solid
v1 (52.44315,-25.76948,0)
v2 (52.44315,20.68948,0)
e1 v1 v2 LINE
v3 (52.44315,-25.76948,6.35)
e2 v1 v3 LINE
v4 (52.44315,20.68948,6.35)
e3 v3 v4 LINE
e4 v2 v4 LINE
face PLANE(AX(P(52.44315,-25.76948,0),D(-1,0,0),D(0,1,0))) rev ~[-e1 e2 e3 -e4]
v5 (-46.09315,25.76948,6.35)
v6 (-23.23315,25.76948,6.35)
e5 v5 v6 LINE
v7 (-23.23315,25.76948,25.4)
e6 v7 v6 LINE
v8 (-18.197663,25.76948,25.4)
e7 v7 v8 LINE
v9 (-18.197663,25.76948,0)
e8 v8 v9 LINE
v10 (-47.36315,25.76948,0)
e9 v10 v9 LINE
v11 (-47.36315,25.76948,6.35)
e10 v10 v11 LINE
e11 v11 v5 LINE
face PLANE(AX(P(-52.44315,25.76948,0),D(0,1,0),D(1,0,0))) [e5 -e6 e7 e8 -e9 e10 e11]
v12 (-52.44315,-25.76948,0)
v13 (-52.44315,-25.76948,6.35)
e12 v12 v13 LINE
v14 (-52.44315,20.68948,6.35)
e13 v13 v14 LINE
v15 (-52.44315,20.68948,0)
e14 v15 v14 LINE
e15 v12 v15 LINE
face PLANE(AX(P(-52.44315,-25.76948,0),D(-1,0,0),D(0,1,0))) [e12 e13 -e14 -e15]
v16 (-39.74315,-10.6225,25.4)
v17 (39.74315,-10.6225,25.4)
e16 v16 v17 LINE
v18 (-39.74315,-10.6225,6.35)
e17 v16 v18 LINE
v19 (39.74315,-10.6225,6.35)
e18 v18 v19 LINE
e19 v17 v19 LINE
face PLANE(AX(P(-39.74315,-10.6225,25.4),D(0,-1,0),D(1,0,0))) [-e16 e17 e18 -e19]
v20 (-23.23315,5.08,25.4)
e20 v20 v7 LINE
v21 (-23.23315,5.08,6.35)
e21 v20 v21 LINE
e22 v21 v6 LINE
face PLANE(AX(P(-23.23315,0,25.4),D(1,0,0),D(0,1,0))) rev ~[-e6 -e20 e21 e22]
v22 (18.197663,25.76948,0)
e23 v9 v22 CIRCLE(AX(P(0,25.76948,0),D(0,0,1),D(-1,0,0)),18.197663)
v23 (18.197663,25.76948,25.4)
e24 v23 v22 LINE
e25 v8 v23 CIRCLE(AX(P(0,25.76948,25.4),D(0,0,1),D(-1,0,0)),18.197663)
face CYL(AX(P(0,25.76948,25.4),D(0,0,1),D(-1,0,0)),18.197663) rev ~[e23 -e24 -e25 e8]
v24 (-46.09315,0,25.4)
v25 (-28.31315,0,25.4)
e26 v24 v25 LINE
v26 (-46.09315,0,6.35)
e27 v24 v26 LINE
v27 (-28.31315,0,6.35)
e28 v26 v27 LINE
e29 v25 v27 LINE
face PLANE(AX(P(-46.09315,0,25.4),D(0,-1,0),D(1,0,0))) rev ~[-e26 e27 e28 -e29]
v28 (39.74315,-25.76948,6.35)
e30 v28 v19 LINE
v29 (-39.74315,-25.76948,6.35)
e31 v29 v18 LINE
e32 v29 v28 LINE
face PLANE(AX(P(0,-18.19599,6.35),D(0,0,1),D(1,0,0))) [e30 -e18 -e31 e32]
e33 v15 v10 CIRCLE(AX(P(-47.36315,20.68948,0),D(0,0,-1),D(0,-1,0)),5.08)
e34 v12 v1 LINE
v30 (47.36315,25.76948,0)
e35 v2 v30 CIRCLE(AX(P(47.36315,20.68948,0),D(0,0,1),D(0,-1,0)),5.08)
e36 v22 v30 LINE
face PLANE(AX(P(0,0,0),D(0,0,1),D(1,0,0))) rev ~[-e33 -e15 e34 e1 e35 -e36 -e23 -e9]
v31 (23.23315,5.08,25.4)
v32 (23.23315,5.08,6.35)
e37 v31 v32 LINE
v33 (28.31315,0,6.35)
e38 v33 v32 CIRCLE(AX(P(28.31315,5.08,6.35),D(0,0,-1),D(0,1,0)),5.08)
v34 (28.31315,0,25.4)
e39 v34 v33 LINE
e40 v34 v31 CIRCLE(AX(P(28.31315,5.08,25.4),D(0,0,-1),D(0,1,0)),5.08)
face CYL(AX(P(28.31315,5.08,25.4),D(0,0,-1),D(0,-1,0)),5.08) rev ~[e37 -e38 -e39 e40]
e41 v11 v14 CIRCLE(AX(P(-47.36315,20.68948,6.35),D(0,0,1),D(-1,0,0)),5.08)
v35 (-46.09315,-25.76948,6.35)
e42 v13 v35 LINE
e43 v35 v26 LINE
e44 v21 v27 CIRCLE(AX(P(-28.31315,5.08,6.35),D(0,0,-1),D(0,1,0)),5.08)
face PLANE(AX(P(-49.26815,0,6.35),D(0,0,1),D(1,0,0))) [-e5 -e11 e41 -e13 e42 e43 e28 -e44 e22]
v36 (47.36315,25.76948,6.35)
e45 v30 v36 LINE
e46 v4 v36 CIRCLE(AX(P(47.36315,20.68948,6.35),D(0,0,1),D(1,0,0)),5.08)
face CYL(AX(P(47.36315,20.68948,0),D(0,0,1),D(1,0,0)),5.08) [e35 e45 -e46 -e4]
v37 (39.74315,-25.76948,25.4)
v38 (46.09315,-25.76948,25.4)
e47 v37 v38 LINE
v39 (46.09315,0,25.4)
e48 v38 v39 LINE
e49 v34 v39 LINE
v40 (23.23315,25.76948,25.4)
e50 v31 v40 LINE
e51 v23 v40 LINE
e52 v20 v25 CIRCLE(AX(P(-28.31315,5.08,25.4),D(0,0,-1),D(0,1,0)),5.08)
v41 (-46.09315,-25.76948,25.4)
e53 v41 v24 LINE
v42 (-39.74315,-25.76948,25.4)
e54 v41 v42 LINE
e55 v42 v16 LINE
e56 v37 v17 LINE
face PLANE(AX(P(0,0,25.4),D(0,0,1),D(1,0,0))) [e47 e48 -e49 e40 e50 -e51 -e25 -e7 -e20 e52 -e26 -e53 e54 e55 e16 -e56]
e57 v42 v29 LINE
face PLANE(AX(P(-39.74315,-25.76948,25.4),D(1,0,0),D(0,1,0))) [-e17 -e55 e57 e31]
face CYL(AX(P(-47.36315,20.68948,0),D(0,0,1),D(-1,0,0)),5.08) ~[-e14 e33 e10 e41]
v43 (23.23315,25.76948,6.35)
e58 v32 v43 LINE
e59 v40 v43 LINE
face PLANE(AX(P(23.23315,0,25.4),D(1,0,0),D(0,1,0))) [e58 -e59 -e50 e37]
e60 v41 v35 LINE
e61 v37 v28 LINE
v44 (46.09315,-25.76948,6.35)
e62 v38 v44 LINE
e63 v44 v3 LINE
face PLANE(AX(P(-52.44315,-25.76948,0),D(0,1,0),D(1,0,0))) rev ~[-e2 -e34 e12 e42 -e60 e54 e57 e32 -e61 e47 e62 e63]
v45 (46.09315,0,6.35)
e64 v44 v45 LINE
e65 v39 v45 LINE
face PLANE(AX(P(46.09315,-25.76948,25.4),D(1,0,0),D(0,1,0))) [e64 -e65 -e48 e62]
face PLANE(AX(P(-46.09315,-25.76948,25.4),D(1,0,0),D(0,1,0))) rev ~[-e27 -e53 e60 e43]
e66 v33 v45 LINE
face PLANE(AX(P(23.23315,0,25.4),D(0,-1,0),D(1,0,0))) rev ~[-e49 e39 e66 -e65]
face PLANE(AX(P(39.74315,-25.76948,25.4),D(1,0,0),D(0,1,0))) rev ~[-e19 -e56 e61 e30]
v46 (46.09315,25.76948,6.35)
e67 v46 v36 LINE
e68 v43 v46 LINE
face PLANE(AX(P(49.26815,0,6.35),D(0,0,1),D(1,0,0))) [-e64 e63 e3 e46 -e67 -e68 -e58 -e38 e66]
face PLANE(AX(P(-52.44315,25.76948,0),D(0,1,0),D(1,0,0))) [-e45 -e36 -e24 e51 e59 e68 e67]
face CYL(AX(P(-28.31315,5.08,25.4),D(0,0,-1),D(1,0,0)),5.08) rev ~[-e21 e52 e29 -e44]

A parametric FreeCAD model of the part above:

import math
import FreeCAD as App
import Part
import Sketcher

V = App.Vector
Q = App.Units.Quantity


def edges_at(feature, points):
    """Names of the edges that pass closest to the given points."""
    edges = feature.Shape.Edges
    near = lambda p: min(range(len(edges)), key=lambda i: edges[i].distToShape(Part.Vertex(*p))[0])
    return sorted({f"Edge{near(p) + 1}" for p in points})

doc = App.newDocument("Part")
body = doc.addObject("PartDesign::Body", "Body")

sketch1 = doc.addObject("Sketcher::SketchObject", "Sketch")
body.addObject(sketch1)
sketch1.AttachmentSupport = (doc.XY_Plane, [""])
sketch1.MapMode = "FlatFace"
sketch1.addGeometry([
    Part.LineSegment(V(-52.44315, 25.76948, 0), V(-52.44315, -25.76948, 0)),
    Part.LineSegment(V(-52.44315, -25.76948, 0), V(52.44315, -25.76948, 0)),
    Part.LineSegment(V(52.44315, -25.76948, 0), V(52.44315, 25.76948, 0)),
    Part.LineSegment(V(52.44315, 25.76948, 0), V(-52.44315, 25.76948, 0)),
], False)
sketch1.addConstraint([
    Sketcher.Constraint("Coincident", 0, 2, 1, 1),
    Sketcher.Constraint("Coincident", 1, 2, 2, 1),
    Sketcher.Constraint("Coincident", 2, 2, 3, 1),
    Sketcher.Constraint("Coincident", 3, 2, 0, 1),
    Sketcher.Constraint("Vertical", 0),
    Sketcher.Constraint("Horizontal", 1),
    Sketcher.Constraint("Vertical", 2),
    Sketcher.Constraint("Horizontal", 3),
    Sketcher.Constraint("Symmetric", 0, 2, 2, 2, -1, 1),
    Sketcher.Constraint("DistanceX", 1, 1, 1, 2, 104.886301),
    Sketcher.Constraint("DistanceY", 0, 2, 0, 1, 51.538959),
])
pad1 = doc.addObject("PartDesign::Pad", "Pad")
body.addObject(pad1)
pad1.Profile = sketch1
pad1.Length = Q("1 in")
doc.recompute()

fillet = doc.addObject("PartDesign::Fillet", "Fillet")
body.addObject(fillet)
fillet.Base = (pad1, edges_at(pad1, [(-52.443, 25.769, 12.7), (52.443, 25.769, 12.7)]))
fillet.Radius = Q("0.2 in")

sketch2 = doc.addObject("Sketcher::SketchObject", "Sketch001")
body.addObject(sketch2)
sketch2.AttachmentSupport = (doc.XY_Plane, [""])
sketch2.MapMode = "FlatFace"
sketch2.AttachmentOffset = App.Placement(V(0, 0, 1 * 25.4), App.Rotation())
sketch2.addGeometry([
    Part.LineSegment(V(-39.74315, -10.6225, 0), V(-39.74315, -25.76948, 0)),
    Part.LineSegment(V(-39.74315, -25.76948, 0), V(39.74315, -25.76948, 0)),
    Part.LineSegment(V(39.74315, -25.76948, 0), V(39.74315, -10.6225, 0)),
    Part.LineSegment(V(39.74315, -10.6225, 0), V(-39.74315, -10.6225, 0)),
], False)
sketch2.addConstraint([
    Sketcher.Constraint("Coincident", 0, 2, 1, 1),
    Sketcher.Constraint("Coincident", 1, 2, 2, 1),
    Sketcher.Constraint("Coincident", 2, 2, 3, 1),
    Sketcher.Constraint("Coincident", 3, 2, 0, 1),
    Sketcher.Constraint("Vertical", 0),
    Sketcher.Constraint("Horizontal", 1),
    Sketcher.Constraint("Vertical", 2),
    Sketcher.Constraint("Horizontal", 3),
    Sketcher.Constraint("DistanceX", 1, 1, 1, 2, 79.486301),
    Sketcher.Constraint("DistanceY", 0, 2, 0, 1, 15.146979),
    Sketcher.Constraint("DistanceY", 2, 2, -1, 1, 10.6225),
    Sketcher.Constraint("DistanceX", 0, 2, -1, 1, 39.74315),
])
pocket1 = doc.addObject("PartDesign::Pocket", "Pocket")
body.addObject(pocket1)
pocket1.Profile = sketch2
pocket1.Length = Q("0.75 in")

sketch3 = doc.addObject("Sketcher::SketchObject", "Sketch002")
body.addObject(sketch3)
sketch3.AttachmentSupport = (doc.XY_Plane, [""])
sketch3.MapMode = "FlatFace"
sketch3.AttachmentOffset = App.Placement(V(0, 0, 1 * 25.4), App.Rotation())
sketch3.addGeometry([
    Part.ArcOfCircle(Part.Circle(V(0, 25.76948, 0), V(0, 0, 1), 18.197663), math.radians(180), math.radians(360)),
    Part.LineSegment(V(18.197663, 25.76948, 0), V(-18.197663, 25.76948, 0)),
], False)
sketch3.addConstraint([
    Sketcher.Constraint("Coincident", 0, 1, 1, 2),
    Sketcher.Constraint("Coincident", 1, 1, 0, 2),
    Sketcher.Constraint("Horizontal", 1),
    Sketcher.Constraint("PointOnObject", 0, 3, -2),
    Sketcher.Constraint("Radius", 0, 18.197663),
    Sketcher.Constraint("DistanceY", -1, 1, 0, 3, 25.76948),
    Sketcher.Constraint("DistanceY", -1, 1, 0, 1, 25.76948),
])
pocket2 = doc.addObject("PartDesign::Pocket", "Pocket001")
body.addObject(pocket2)
pocket2.Profile = sketch3
pocket2.Length = Q("1 in")

sketch4 = doc.addObject("Sketcher::SketchObject", "Sketch003")
body.addObject(sketch4)
sketch4.AttachmentSupport = (doc.XY_Plane, [""])
sketch4.MapMode = "FlatFace"
sketch4.AttachmentOffset = App.Placement(V(0, 0, 1 * 25.4), App.Rotation())
sketch4.addGeometry([
    Part.LineSegment(V(-52.44315, 25.76948, 0), V(-52.44315, -25.76948, 0)),
    Part.LineSegment(V(-52.44315, -25.76948, 0), V(-46.09315, -25.76948, 0)),
    Part.LineSegment(V(-46.09315, -25.76948, 0), V(-46.09315, 25.76948, 0)),
    Part.LineSegment(V(-46.09315, 25.76948, 0), V(-52.44315, 25.76948, 0)),
    Part.LineSegment(V(46.09315, 25.76948, 0), V(46.09315, -25.76948, 0)),
    Part.LineSegment(V(46.09315, -25.76948, 0), V(52.44315, -25.76948, 0)),
    Part.LineSegment(V(52.44315, -25.76948, 0), V(52.44315, 25.76948, 0)),
    Part.LineSegment(V(52.44315, 25.76948, 0), V(46.09315, 25.76948, 0)),
], False)
sketch4.addConstraint([
    Sketcher.Constraint("Coincident", 0, 2, 1, 1),
    Sketcher.Constraint("Coincident", 1, 2, 2, 1),
    Sketcher.Constraint("Coincident", 2, 2, 3, 1),
    Sketcher.Constraint("Coincident", 3, 2, 0, 1),
    Sketcher.Constraint("Coincident", 4, 2, 5, 1),
    Sketcher.Constraint("Coincident", 5, 2, 6, 1),
    Sketcher.Constraint("Coincident", 6, 2, 7, 1),
    Sketcher.Constraint("Coincident", 7, 2, 4, 1),
    Sketcher.Constraint("Vertical", 0),
    Sketcher.Constraint("Horizontal", 1),
    Sketcher.Constraint("Vertical", 2),
    Sketcher.Constraint("Horizontal", 3),
    Sketcher.Constraint("Vertical", 4),
    Sketcher.Constraint("Horizontal", 5),
    Sketcher.Constraint("Vertical", 6),
    Sketcher.Constraint("Horizontal", 7),
    Sketcher.Constraint("Symmetric", 2, 2, 4, 2, -1, 1),
    Sketcher.Constraint("Symmetric", 0, 2, 6, 2, -1, 1),
    Sketcher.Constraint("Horizontal", 1, 2, 4, 2),
    Sketcher.Constraint("DistanceX", 1, 1, 1, 2, Q("0.25 in")),
    Sketcher.Constraint("DistanceY", 0, 2, 0, 1, 51.538959),
    Sketcher.Constraint("DistanceX", 1, 2, 4, 2, 92.186301),
])
pocket3 = doc.addObject("PartDesign::Pocket", "Pocket002")
body.addObject(pocket3)
pocket3.Profile = sketch4
pocket3.Length = Q("0.75 in")

sketch5 = doc.addObject("Sketcher::SketchObject", "Sketch004")
body.addObject(sketch5)
sketch5.AttachmentSupport = (doc.XY_Plane, [""])
sketch5.MapMode = "FlatFace"
sketch5.AttachmentOffset = App.Placement(V(0, 0, 1 * 25.4), App.Rotation())
sketch5.addGeometry([
    Part.LineSegment(V(-46.09315, 25.76948, 0), V(-46.09315, 0, 0)),
    Part.LineSegment(V(-46.09315, 0, 0), V(-23.23315, 0, 0)),
    Part.LineSegment(V(-23.23315, 0, 0), V(-23.23315, 25.76948, 0)),
    Part.LineSegment(V(-23.23315, 25.76948, 0), V(-46.09315, 25.76948, 0)),
    Part.LineSegment(V(23.23315, 25.76948, 0), V(23.23315, 0, 0)),
    Part.LineSegment(V(23.23315, 0, 0), V(46.09315, 0, 0)),
    Part.LineSegment(V(46.09315, 0, 0), V(46.09315, 25.76948, 0)),
    Part.LineSegment(V(46.09315, 25.76948, 0), V(23.23315, 25.76948, 0)),
], False)
sketch5.addConstraint([
    Sketcher.Constraint("Coincident", 0, 2, 1, 1),
    Sketcher.Constraint("Coincident", 1, 2, 2, 1),
    Sketcher.Constraint("Coincident", 2, 2, 3, 1),
    Sketcher.Constraint("Coincident", 3, 2, 0, 1),
    Sketcher.Constraint("Coincident", 4, 2, 5, 1),
    Sketcher.Constraint("Coincident", 5, 2, 6, 1),
    Sketcher.Constraint("Coincident", 6, 2, 7, 1),
    Sketcher.Constraint("Coincident", 7, 2, 4, 1),
    Sketcher.Constraint("Vertical", 0),
    Sketcher.Constraint("Horizontal", 1),
    Sketcher.Constraint("Vertical", 2),
    Sketcher.Constraint("Horizontal", 3),
    Sketcher.Constraint("Vertical", 4),
    Sketcher.Constraint("Horizontal", 5),
    Sketcher.Constraint("Vertical", 6),
    Sketcher.Constraint("Horizontal", 7),
    Sketcher.Constraint("Symmetric", 1, 2, 4, 2, -1, 1),
    Sketcher.Constraint("Symmetric", 0, 2, 5, 2, -2),
    Sketcher.Constraint("Horizontal", 3, 2, 6, 2),
    Sketcher.Constraint("DistanceX", 1, 1, 1, 2, Q("0.9 in")),
    Sketcher.Constraint("DistanceY", 0, 2, 0, 1, 25.76948),
    Sketcher.Constraint("DistanceX", 1, 2, 4, 2, 46.466301),
])
pocket4 = doc.addObject("PartDesign::Pocket", "Pocket003")
body.addObject(pocket4)
pocket4.Profile = sketch5
pocket4.Length = Q("0.75 in")
doc.recompute()

fillet2 = doc.addObject("PartDesign::Fillet", "Fillet001")
body.addObject(fillet2)
fillet2.Base = (pocket4, edges_at(pocket4, [(-23.233, 0, 15.875), (23.233, 0, 15.875)]))
fillet2.Radius = Q("0.2 in")

doc.recompute()
